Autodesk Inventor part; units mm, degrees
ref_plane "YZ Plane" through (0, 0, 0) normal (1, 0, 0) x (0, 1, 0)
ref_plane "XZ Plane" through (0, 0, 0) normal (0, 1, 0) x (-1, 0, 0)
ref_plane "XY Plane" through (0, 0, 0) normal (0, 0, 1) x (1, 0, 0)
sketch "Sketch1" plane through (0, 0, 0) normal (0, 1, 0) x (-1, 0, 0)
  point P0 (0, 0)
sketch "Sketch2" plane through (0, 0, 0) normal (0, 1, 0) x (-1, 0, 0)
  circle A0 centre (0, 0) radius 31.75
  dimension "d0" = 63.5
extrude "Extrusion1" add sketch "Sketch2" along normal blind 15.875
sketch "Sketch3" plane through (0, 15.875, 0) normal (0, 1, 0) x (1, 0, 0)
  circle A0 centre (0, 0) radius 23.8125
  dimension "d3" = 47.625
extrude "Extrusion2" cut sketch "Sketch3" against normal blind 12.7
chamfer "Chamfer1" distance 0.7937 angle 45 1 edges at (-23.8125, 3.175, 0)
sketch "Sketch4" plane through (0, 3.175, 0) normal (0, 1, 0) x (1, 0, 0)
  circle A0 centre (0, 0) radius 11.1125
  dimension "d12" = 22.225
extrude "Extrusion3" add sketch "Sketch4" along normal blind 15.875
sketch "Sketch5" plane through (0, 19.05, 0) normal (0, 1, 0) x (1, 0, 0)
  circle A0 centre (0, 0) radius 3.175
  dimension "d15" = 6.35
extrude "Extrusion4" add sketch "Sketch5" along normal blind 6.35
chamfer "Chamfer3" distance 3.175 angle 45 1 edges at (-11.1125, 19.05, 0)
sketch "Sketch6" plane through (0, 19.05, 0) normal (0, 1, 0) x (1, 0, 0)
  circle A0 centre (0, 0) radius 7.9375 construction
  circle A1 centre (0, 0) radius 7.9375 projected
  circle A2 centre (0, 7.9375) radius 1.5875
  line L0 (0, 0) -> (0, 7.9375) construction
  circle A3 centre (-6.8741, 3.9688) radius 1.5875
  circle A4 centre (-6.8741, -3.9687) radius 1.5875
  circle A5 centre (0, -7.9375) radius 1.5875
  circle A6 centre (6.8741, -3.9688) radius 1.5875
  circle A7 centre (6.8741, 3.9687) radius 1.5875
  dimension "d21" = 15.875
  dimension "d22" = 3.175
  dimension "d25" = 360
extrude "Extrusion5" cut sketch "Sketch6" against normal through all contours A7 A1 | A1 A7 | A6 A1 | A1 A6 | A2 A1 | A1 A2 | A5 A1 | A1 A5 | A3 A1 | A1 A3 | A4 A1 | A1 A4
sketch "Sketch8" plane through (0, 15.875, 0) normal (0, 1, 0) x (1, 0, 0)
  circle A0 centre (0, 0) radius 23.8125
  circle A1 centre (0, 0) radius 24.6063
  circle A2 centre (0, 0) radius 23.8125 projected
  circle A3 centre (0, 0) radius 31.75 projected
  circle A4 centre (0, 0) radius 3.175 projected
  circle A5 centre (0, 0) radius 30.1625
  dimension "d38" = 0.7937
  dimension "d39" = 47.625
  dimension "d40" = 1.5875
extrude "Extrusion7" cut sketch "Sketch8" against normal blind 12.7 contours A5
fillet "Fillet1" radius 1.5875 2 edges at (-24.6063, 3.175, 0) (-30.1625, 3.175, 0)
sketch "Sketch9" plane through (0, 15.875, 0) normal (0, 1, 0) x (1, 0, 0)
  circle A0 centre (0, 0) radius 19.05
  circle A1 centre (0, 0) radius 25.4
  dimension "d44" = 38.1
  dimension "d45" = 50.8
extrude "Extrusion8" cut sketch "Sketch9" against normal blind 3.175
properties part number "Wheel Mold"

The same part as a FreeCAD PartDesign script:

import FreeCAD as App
import Part
import Sketcher
Q = App.Units.Quantity


def edges_at(feature, points):
    """Names of the edges that pass closest to the given points."""
    edges = feature.Shape.Edges
    near = lambda p: min(range(len(edges)), key=lambda i: edges[i].distToShape(Part.Vertex(*p))[0])
    return sorted({f"Edge{near(p) + 1}" for p in points})

doc = App.newDocument("Part")
params = doc.addObject("Spreadsheet::Sheet", "Params")
for row, (alias, value) in enumerate([
    ("sketch1_diameter", "2.5 in"),
    ("pad1_length", "0.625 in"),
    ("sketch2_diameter", "1.875 in"),
    ("pocket1_length", "0.5 in"),
    ("chamfer_size", "0.031248 in"),
    ("sketch3_diameter", "0.875 in"),
    ("pad2_length", "0.625 in"),
    ("sketch4_diameter", "0.25 in"),
    ("pad3_length", "0.25 in"),
    ("chamfer2_size", "0.125 in"),
    ("sketch5_diameter", "0.125 in"),
    ("sketch6_diameter", "2.375 in"),
    ("sketch6_diameter2", "1.9375 in"),
    ("pocket3_length", "0.5 in"),
    ("fillet_radius", "0.0625 in"),
    ("sketch7_diameter", "2 in"),
    ("sketch7_diameter2", "1.5 in"),
    ("pocket4_length", "0.125 in"),
], start=1):
    params.set(f"A{row}", alias)
    params.set(f"B{row}", "=" + value)
    params.setAlias(f"B{row}", alias)

body = doc.addObject("PartDesign::Body", "Body")

sketch1 = body.newObject("Sketcher::SketchObject", "Sketch")
sketch1.AttachmentSupport = (doc.getObject("XZ_Plane"), [""])
sketch1.MapMode = "FlatFace"
sketch1.addGeometry(Part.Circle(App.Vector(0, 0, 0), App.Vector(0, 0, 1), 32), False)
sketch1.addConstraint(Sketcher.Constraint("Coincident", 0, 3, -1, 1))
sketch1.addConstraint(Sketcher.Constraint("Diameter", 0, Q("2.5 in")))
sketch1.setExpression("Constraints[1]", "Params.sketch1_diameter")
pad1 = body.newObject("PartDesign::Pad", "Pad")
pad1.Profile = sketch1
pad1.setExpression("Length", "Params.pad1_length")
pad1.Reversed = True

sketch2 = body.newObject("Sketcher::SketchObject", "Sketch001")
sketch2.AttachmentSupport = (doc.getObject("XZ_Plane"), [""])
sketch2.MapMode = "FlatFace"
sketch2.AttachmentOffset = App.Placement(App.Vector(0, 0, -0.625 * 25.4), App.Rotation())
sketch2.addGeometry(Part.Circle(App.Vector(0, 0, 0), App.Vector(0, 0, 1), 24), False)
sketch2.addConstraint(Sketcher.Constraint("Coincident", 0, 3, -1, 1))
sketch2.addConstraint(Sketcher.Constraint("Diameter", 0, Q("1.875 in")))
sketch2.setExpression("Constraints[1]", "Params.sketch2_diameter")
pocket1 = body.newObject("PartDesign::Pocket", "Pocket")
pocket1.Profile = sketch2
pocket1.setExpression("Length", "Params.pocket1_length")
pocket1.Reversed = True
doc.recompute()

chamfer = body.newObject("PartDesign::Chamfer", "Chamfer")
chamfer.Base = (pocket1, edges_at(pocket1, [(-23.812, 3.175, 0)]))
chamfer.setExpression("Size", "Params.chamfer_size")

sketch3 = body.newObject("Sketcher::SketchObject", "Sketch002")
sketch3.AttachmentSupport = (doc.getObject("XZ_Plane"), [""])
sketch3.MapMode = "FlatFace"
sketch3.AttachmentOffset = App.Placement(App.Vector(0, 0, -0.125 * 25.4), App.Rotation())
sketch3.addGeometry(Part.Circle(App.Vector(0, 0, 0), App.Vector(0, 0, 1), 11), False)
sketch3.addConstraint(Sketcher.Constraint("Coincident", 0, 3, -1, 1))
sketch3.addConstraint(Sketcher.Constraint("Diameter", 0, Q("0.875 in")))
sketch3.setExpression("Constraints[1]", "Params.sketch3_diameter")
pad2 = body.newObject("PartDesign::Pad", "Pad001")
pad2.Profile = sketch3
pad2.setExpression("Length", "Params.pad2_length")
pad2.Reversed = True

sketch4 = body.newObject("Sketcher::SketchObject", "Sketch003")
sketch4.AttachmentSupport = (doc.getObject("XZ_Plane"), [""])
sketch4.MapMode = "FlatFace"
sketch4.AttachmentOffset = App.Placement(App.Vector(0, 0, -0.75 * 25.4), App.Rotation())
sketch4.addGeometry(Part.Circle(App.Vector(0, 0, 0), App.Vector(0, 0, 1), 3.2), False)
sketch4.addConstraint(Sketcher.Constraint("Coincident", 0, 3, -1, 1))
sketch4.addConstraint(Sketcher.Constraint("Diameter", 0, Q("0.25 in")))
sketch4.setExpression("Constraints[1]", "Params.sketch4_diameter")
pad3 = body.newObject("PartDesign::Pad", "Pad002")
pad3.Profile = sketch4
pad3.setExpression("Length", "Params.pad3_length")
pad3.Reversed = True
doc.recompute()

chamfer2 = body.newObject("PartDesign::Chamfer", "Chamfer001")
chamfer2.Base = (pad3, edges_at(pad3, [(-11.113, 19.05, 0)]))
chamfer2.setExpression("Size", "Params.chamfer2_size")

sketch5 = body.newObject("Sketcher::SketchObject", "Sketch004")
sketch5.AttachmentSupport = (doc.getObject("XZ_Plane"), [""])
sketch5.MapMode = "FlatFace"
sketch5.AttachmentOffset = App.Placement(App.Vector(0, 0, -0.75 * 25.4), App.Rotation())
sketch5.addGeometry(Part.Circle(App.Vector(6.9, -4, 0), App.Vector(0, 0, 1), 1.6), False)
sketch5.addGeometry(Part.Circle(App.Vector(6.9, 4, 0), App.Vector(0, 0, 1), 1.6), False)
sketch5.addGeometry(Part.Circle(App.Vector(0, -7.9, 0), App.Vector(0, 0, 1), 1.6), False)
sketch5.addGeometry(Part.Circle(App.Vector(0, 7.9, 0), App.Vector(0, 0, 1), 1.6), False)
sketch5.addGeometry(Part.Circle(App.Vector(-6.9, -4, 0), App.Vector(0, 0, 1), 1.6), False)
sketch5.addGeometry(Part.Circle(App.Vector(-6.9, 4, 0), App.Vector(0, 0, 1), 1.6), False)
sketch5.addConstraint(Sketcher.Constraint("Equal", 0, 1))
sketch5.addConstraint(Sketcher.Constraint("Equal", 1, 2))
sketch5.addConstraint(Sketcher.Constraint("Equal", 2, 3))
sketch5.addConstraint(Sketcher.Constraint("Equal", 3, 4))
sketch5.addConstraint(Sketcher.Constraint("Equal", 4, 5))
sketch5.addConstraint(Sketcher.Constraint("Symmetric", 2, 3, 3, 3, -1, 1))
sketch5.addConstraint(Sketcher.Constraint("Symmetric", 1, 3, 4, 3, -1, 1))
sketch5.addConstraint(Sketcher.Constraint("Symmetric", 0, 3, 5, 3, -1, 1))
sketch5.addConstraint(Sketcher.Constraint("Symmetric", 0, 3, 4, 3, -2))
sketch5.addConstraint(Sketcher.Constraint("PointOnObject", 2, 3, -2))
sketch5.addConstraint(Sketcher.Constraint("Diameter", 0, Q("0.125 in")))
sketch5.addConstraint(Sketcher.Constraint("DistanceY", 2, 3, 3, 3, Q("0.625 in")))
sketch5.addConstraint(Sketcher.Constraint("DistanceY", 0, 3, -1, 1, Q("0.156248 in")))
sketch5.addConstraint(Sketcher.Constraint("DistanceX", -1, 1, 0, 3, Q("6.874 mm")))
sketch5.setExpression("Constraints[10]", "Params.sketch5_diameter")
pocket2 = body.newObject("PartDesign::Pocket", "Pocket001")
pocket2.Profile = sketch5
pocket2.Type = "ThroughAll"
pocket2.Reversed = True

sketch6 = body.newObject("Sketcher::SketchObject", "Sketch005")
sketch6.AttachmentSupport = (doc.getObject("XZ_Plane"), [""])
sketch6.MapMode = "FlatFace"
sketch6.AttachmentOffset = App.Placement(App.Vector(0, 0, -0.625 * 25.4), App.Rotation())
sketch6.addGeometry(Part.Circle(App.Vector(0, 0, 0), App.Vector(0, 0, 1), 30), False)
sketch6.addGeometry(Part.Circle(App.Vector(0, 0, 0), App.Vector(0, 0, 1), 25), False)
sketch6.addConstraint(Sketcher.Constraint("Coincident", 0, 3, -1, 1))
sketch6.addConstraint(Sketcher.Constraint("Coincident", 1, 3, -1, 1))
sketch6.addConstraint(Sketcher.Constraint("Diameter", 0, Q("2.375 in")))
sketch6.addConstraint(Sketcher.Constraint("Diameter", 1, Q("1.9375 in")))
sketch6.setExpression("Constraints[2]", "Params.sketch6_diameter")
sketch6.setExpression("Constraints[3]", "Params.sketch6_diameter2")
pocket3 = body.newObject("PartDesign::Pocket", "Pocket002")
pocket3.Profile = sketch6
pocket3.setExpression("Length", "Params.pocket3_length")
pocket3.Reversed = True
doc.recompute()

fillet = body.newObject("PartDesign::Fillet", "Fillet")
fillet.Base = (pocket3, edges_at(pocket3, [(-24.606, 3.175, 0), (-30.163, 3.175, 0)]))
fillet.setExpression("Radius", "Params.fillet_radius")

sketch7 = body.newObject("Sketcher::SketchObject", "Sketch006")
sketch7.AttachmentSupport = (doc.getObject("XZ_Plane"), [""])
sketch7.MapMode = "FlatFace"
sketch7.AttachmentOffset = App.Placement(App.Vector(0, 0, -0.625 * 25.4), App.Rotation())
sketch7.addGeometry(Part.Circle(App.Vector(0, 0, 0), App.Vector(0, 0, 1), 25), False)
sketch7.addGeometry(Part.Circle(App.Vector(0, 0, 0), App.Vector(0, 0, 1), 19), False)
sketch7.addConstraint(Sketcher.Constraint("Coincident", 0, 3, -1, 1))
sketch7.addConstraint(Sketcher.Constraint("Coincident", 1, 3, -1, 1))
sketch7.addConstraint(Sketcher.Constraint("Diameter", 0, Q("2 in")))
sketch7.addConstraint(Sketcher.Constraint("Diameter", 1, Q("1.5 in")))
sketch7.setExpression("Constraints[2]", "Params.sketch7_diameter")
sketch7.setExpression("Constraints[3]", "Params.sketch7_diameter2")
pocket4 = body.newObject("PartDesign::Pocket", "Pocket003")
pocket4.Profile = sketch7
pocket4.setExpression("Length", "Params.pocket4_length")
pocket4.Reversed = True

doc.recompute()
